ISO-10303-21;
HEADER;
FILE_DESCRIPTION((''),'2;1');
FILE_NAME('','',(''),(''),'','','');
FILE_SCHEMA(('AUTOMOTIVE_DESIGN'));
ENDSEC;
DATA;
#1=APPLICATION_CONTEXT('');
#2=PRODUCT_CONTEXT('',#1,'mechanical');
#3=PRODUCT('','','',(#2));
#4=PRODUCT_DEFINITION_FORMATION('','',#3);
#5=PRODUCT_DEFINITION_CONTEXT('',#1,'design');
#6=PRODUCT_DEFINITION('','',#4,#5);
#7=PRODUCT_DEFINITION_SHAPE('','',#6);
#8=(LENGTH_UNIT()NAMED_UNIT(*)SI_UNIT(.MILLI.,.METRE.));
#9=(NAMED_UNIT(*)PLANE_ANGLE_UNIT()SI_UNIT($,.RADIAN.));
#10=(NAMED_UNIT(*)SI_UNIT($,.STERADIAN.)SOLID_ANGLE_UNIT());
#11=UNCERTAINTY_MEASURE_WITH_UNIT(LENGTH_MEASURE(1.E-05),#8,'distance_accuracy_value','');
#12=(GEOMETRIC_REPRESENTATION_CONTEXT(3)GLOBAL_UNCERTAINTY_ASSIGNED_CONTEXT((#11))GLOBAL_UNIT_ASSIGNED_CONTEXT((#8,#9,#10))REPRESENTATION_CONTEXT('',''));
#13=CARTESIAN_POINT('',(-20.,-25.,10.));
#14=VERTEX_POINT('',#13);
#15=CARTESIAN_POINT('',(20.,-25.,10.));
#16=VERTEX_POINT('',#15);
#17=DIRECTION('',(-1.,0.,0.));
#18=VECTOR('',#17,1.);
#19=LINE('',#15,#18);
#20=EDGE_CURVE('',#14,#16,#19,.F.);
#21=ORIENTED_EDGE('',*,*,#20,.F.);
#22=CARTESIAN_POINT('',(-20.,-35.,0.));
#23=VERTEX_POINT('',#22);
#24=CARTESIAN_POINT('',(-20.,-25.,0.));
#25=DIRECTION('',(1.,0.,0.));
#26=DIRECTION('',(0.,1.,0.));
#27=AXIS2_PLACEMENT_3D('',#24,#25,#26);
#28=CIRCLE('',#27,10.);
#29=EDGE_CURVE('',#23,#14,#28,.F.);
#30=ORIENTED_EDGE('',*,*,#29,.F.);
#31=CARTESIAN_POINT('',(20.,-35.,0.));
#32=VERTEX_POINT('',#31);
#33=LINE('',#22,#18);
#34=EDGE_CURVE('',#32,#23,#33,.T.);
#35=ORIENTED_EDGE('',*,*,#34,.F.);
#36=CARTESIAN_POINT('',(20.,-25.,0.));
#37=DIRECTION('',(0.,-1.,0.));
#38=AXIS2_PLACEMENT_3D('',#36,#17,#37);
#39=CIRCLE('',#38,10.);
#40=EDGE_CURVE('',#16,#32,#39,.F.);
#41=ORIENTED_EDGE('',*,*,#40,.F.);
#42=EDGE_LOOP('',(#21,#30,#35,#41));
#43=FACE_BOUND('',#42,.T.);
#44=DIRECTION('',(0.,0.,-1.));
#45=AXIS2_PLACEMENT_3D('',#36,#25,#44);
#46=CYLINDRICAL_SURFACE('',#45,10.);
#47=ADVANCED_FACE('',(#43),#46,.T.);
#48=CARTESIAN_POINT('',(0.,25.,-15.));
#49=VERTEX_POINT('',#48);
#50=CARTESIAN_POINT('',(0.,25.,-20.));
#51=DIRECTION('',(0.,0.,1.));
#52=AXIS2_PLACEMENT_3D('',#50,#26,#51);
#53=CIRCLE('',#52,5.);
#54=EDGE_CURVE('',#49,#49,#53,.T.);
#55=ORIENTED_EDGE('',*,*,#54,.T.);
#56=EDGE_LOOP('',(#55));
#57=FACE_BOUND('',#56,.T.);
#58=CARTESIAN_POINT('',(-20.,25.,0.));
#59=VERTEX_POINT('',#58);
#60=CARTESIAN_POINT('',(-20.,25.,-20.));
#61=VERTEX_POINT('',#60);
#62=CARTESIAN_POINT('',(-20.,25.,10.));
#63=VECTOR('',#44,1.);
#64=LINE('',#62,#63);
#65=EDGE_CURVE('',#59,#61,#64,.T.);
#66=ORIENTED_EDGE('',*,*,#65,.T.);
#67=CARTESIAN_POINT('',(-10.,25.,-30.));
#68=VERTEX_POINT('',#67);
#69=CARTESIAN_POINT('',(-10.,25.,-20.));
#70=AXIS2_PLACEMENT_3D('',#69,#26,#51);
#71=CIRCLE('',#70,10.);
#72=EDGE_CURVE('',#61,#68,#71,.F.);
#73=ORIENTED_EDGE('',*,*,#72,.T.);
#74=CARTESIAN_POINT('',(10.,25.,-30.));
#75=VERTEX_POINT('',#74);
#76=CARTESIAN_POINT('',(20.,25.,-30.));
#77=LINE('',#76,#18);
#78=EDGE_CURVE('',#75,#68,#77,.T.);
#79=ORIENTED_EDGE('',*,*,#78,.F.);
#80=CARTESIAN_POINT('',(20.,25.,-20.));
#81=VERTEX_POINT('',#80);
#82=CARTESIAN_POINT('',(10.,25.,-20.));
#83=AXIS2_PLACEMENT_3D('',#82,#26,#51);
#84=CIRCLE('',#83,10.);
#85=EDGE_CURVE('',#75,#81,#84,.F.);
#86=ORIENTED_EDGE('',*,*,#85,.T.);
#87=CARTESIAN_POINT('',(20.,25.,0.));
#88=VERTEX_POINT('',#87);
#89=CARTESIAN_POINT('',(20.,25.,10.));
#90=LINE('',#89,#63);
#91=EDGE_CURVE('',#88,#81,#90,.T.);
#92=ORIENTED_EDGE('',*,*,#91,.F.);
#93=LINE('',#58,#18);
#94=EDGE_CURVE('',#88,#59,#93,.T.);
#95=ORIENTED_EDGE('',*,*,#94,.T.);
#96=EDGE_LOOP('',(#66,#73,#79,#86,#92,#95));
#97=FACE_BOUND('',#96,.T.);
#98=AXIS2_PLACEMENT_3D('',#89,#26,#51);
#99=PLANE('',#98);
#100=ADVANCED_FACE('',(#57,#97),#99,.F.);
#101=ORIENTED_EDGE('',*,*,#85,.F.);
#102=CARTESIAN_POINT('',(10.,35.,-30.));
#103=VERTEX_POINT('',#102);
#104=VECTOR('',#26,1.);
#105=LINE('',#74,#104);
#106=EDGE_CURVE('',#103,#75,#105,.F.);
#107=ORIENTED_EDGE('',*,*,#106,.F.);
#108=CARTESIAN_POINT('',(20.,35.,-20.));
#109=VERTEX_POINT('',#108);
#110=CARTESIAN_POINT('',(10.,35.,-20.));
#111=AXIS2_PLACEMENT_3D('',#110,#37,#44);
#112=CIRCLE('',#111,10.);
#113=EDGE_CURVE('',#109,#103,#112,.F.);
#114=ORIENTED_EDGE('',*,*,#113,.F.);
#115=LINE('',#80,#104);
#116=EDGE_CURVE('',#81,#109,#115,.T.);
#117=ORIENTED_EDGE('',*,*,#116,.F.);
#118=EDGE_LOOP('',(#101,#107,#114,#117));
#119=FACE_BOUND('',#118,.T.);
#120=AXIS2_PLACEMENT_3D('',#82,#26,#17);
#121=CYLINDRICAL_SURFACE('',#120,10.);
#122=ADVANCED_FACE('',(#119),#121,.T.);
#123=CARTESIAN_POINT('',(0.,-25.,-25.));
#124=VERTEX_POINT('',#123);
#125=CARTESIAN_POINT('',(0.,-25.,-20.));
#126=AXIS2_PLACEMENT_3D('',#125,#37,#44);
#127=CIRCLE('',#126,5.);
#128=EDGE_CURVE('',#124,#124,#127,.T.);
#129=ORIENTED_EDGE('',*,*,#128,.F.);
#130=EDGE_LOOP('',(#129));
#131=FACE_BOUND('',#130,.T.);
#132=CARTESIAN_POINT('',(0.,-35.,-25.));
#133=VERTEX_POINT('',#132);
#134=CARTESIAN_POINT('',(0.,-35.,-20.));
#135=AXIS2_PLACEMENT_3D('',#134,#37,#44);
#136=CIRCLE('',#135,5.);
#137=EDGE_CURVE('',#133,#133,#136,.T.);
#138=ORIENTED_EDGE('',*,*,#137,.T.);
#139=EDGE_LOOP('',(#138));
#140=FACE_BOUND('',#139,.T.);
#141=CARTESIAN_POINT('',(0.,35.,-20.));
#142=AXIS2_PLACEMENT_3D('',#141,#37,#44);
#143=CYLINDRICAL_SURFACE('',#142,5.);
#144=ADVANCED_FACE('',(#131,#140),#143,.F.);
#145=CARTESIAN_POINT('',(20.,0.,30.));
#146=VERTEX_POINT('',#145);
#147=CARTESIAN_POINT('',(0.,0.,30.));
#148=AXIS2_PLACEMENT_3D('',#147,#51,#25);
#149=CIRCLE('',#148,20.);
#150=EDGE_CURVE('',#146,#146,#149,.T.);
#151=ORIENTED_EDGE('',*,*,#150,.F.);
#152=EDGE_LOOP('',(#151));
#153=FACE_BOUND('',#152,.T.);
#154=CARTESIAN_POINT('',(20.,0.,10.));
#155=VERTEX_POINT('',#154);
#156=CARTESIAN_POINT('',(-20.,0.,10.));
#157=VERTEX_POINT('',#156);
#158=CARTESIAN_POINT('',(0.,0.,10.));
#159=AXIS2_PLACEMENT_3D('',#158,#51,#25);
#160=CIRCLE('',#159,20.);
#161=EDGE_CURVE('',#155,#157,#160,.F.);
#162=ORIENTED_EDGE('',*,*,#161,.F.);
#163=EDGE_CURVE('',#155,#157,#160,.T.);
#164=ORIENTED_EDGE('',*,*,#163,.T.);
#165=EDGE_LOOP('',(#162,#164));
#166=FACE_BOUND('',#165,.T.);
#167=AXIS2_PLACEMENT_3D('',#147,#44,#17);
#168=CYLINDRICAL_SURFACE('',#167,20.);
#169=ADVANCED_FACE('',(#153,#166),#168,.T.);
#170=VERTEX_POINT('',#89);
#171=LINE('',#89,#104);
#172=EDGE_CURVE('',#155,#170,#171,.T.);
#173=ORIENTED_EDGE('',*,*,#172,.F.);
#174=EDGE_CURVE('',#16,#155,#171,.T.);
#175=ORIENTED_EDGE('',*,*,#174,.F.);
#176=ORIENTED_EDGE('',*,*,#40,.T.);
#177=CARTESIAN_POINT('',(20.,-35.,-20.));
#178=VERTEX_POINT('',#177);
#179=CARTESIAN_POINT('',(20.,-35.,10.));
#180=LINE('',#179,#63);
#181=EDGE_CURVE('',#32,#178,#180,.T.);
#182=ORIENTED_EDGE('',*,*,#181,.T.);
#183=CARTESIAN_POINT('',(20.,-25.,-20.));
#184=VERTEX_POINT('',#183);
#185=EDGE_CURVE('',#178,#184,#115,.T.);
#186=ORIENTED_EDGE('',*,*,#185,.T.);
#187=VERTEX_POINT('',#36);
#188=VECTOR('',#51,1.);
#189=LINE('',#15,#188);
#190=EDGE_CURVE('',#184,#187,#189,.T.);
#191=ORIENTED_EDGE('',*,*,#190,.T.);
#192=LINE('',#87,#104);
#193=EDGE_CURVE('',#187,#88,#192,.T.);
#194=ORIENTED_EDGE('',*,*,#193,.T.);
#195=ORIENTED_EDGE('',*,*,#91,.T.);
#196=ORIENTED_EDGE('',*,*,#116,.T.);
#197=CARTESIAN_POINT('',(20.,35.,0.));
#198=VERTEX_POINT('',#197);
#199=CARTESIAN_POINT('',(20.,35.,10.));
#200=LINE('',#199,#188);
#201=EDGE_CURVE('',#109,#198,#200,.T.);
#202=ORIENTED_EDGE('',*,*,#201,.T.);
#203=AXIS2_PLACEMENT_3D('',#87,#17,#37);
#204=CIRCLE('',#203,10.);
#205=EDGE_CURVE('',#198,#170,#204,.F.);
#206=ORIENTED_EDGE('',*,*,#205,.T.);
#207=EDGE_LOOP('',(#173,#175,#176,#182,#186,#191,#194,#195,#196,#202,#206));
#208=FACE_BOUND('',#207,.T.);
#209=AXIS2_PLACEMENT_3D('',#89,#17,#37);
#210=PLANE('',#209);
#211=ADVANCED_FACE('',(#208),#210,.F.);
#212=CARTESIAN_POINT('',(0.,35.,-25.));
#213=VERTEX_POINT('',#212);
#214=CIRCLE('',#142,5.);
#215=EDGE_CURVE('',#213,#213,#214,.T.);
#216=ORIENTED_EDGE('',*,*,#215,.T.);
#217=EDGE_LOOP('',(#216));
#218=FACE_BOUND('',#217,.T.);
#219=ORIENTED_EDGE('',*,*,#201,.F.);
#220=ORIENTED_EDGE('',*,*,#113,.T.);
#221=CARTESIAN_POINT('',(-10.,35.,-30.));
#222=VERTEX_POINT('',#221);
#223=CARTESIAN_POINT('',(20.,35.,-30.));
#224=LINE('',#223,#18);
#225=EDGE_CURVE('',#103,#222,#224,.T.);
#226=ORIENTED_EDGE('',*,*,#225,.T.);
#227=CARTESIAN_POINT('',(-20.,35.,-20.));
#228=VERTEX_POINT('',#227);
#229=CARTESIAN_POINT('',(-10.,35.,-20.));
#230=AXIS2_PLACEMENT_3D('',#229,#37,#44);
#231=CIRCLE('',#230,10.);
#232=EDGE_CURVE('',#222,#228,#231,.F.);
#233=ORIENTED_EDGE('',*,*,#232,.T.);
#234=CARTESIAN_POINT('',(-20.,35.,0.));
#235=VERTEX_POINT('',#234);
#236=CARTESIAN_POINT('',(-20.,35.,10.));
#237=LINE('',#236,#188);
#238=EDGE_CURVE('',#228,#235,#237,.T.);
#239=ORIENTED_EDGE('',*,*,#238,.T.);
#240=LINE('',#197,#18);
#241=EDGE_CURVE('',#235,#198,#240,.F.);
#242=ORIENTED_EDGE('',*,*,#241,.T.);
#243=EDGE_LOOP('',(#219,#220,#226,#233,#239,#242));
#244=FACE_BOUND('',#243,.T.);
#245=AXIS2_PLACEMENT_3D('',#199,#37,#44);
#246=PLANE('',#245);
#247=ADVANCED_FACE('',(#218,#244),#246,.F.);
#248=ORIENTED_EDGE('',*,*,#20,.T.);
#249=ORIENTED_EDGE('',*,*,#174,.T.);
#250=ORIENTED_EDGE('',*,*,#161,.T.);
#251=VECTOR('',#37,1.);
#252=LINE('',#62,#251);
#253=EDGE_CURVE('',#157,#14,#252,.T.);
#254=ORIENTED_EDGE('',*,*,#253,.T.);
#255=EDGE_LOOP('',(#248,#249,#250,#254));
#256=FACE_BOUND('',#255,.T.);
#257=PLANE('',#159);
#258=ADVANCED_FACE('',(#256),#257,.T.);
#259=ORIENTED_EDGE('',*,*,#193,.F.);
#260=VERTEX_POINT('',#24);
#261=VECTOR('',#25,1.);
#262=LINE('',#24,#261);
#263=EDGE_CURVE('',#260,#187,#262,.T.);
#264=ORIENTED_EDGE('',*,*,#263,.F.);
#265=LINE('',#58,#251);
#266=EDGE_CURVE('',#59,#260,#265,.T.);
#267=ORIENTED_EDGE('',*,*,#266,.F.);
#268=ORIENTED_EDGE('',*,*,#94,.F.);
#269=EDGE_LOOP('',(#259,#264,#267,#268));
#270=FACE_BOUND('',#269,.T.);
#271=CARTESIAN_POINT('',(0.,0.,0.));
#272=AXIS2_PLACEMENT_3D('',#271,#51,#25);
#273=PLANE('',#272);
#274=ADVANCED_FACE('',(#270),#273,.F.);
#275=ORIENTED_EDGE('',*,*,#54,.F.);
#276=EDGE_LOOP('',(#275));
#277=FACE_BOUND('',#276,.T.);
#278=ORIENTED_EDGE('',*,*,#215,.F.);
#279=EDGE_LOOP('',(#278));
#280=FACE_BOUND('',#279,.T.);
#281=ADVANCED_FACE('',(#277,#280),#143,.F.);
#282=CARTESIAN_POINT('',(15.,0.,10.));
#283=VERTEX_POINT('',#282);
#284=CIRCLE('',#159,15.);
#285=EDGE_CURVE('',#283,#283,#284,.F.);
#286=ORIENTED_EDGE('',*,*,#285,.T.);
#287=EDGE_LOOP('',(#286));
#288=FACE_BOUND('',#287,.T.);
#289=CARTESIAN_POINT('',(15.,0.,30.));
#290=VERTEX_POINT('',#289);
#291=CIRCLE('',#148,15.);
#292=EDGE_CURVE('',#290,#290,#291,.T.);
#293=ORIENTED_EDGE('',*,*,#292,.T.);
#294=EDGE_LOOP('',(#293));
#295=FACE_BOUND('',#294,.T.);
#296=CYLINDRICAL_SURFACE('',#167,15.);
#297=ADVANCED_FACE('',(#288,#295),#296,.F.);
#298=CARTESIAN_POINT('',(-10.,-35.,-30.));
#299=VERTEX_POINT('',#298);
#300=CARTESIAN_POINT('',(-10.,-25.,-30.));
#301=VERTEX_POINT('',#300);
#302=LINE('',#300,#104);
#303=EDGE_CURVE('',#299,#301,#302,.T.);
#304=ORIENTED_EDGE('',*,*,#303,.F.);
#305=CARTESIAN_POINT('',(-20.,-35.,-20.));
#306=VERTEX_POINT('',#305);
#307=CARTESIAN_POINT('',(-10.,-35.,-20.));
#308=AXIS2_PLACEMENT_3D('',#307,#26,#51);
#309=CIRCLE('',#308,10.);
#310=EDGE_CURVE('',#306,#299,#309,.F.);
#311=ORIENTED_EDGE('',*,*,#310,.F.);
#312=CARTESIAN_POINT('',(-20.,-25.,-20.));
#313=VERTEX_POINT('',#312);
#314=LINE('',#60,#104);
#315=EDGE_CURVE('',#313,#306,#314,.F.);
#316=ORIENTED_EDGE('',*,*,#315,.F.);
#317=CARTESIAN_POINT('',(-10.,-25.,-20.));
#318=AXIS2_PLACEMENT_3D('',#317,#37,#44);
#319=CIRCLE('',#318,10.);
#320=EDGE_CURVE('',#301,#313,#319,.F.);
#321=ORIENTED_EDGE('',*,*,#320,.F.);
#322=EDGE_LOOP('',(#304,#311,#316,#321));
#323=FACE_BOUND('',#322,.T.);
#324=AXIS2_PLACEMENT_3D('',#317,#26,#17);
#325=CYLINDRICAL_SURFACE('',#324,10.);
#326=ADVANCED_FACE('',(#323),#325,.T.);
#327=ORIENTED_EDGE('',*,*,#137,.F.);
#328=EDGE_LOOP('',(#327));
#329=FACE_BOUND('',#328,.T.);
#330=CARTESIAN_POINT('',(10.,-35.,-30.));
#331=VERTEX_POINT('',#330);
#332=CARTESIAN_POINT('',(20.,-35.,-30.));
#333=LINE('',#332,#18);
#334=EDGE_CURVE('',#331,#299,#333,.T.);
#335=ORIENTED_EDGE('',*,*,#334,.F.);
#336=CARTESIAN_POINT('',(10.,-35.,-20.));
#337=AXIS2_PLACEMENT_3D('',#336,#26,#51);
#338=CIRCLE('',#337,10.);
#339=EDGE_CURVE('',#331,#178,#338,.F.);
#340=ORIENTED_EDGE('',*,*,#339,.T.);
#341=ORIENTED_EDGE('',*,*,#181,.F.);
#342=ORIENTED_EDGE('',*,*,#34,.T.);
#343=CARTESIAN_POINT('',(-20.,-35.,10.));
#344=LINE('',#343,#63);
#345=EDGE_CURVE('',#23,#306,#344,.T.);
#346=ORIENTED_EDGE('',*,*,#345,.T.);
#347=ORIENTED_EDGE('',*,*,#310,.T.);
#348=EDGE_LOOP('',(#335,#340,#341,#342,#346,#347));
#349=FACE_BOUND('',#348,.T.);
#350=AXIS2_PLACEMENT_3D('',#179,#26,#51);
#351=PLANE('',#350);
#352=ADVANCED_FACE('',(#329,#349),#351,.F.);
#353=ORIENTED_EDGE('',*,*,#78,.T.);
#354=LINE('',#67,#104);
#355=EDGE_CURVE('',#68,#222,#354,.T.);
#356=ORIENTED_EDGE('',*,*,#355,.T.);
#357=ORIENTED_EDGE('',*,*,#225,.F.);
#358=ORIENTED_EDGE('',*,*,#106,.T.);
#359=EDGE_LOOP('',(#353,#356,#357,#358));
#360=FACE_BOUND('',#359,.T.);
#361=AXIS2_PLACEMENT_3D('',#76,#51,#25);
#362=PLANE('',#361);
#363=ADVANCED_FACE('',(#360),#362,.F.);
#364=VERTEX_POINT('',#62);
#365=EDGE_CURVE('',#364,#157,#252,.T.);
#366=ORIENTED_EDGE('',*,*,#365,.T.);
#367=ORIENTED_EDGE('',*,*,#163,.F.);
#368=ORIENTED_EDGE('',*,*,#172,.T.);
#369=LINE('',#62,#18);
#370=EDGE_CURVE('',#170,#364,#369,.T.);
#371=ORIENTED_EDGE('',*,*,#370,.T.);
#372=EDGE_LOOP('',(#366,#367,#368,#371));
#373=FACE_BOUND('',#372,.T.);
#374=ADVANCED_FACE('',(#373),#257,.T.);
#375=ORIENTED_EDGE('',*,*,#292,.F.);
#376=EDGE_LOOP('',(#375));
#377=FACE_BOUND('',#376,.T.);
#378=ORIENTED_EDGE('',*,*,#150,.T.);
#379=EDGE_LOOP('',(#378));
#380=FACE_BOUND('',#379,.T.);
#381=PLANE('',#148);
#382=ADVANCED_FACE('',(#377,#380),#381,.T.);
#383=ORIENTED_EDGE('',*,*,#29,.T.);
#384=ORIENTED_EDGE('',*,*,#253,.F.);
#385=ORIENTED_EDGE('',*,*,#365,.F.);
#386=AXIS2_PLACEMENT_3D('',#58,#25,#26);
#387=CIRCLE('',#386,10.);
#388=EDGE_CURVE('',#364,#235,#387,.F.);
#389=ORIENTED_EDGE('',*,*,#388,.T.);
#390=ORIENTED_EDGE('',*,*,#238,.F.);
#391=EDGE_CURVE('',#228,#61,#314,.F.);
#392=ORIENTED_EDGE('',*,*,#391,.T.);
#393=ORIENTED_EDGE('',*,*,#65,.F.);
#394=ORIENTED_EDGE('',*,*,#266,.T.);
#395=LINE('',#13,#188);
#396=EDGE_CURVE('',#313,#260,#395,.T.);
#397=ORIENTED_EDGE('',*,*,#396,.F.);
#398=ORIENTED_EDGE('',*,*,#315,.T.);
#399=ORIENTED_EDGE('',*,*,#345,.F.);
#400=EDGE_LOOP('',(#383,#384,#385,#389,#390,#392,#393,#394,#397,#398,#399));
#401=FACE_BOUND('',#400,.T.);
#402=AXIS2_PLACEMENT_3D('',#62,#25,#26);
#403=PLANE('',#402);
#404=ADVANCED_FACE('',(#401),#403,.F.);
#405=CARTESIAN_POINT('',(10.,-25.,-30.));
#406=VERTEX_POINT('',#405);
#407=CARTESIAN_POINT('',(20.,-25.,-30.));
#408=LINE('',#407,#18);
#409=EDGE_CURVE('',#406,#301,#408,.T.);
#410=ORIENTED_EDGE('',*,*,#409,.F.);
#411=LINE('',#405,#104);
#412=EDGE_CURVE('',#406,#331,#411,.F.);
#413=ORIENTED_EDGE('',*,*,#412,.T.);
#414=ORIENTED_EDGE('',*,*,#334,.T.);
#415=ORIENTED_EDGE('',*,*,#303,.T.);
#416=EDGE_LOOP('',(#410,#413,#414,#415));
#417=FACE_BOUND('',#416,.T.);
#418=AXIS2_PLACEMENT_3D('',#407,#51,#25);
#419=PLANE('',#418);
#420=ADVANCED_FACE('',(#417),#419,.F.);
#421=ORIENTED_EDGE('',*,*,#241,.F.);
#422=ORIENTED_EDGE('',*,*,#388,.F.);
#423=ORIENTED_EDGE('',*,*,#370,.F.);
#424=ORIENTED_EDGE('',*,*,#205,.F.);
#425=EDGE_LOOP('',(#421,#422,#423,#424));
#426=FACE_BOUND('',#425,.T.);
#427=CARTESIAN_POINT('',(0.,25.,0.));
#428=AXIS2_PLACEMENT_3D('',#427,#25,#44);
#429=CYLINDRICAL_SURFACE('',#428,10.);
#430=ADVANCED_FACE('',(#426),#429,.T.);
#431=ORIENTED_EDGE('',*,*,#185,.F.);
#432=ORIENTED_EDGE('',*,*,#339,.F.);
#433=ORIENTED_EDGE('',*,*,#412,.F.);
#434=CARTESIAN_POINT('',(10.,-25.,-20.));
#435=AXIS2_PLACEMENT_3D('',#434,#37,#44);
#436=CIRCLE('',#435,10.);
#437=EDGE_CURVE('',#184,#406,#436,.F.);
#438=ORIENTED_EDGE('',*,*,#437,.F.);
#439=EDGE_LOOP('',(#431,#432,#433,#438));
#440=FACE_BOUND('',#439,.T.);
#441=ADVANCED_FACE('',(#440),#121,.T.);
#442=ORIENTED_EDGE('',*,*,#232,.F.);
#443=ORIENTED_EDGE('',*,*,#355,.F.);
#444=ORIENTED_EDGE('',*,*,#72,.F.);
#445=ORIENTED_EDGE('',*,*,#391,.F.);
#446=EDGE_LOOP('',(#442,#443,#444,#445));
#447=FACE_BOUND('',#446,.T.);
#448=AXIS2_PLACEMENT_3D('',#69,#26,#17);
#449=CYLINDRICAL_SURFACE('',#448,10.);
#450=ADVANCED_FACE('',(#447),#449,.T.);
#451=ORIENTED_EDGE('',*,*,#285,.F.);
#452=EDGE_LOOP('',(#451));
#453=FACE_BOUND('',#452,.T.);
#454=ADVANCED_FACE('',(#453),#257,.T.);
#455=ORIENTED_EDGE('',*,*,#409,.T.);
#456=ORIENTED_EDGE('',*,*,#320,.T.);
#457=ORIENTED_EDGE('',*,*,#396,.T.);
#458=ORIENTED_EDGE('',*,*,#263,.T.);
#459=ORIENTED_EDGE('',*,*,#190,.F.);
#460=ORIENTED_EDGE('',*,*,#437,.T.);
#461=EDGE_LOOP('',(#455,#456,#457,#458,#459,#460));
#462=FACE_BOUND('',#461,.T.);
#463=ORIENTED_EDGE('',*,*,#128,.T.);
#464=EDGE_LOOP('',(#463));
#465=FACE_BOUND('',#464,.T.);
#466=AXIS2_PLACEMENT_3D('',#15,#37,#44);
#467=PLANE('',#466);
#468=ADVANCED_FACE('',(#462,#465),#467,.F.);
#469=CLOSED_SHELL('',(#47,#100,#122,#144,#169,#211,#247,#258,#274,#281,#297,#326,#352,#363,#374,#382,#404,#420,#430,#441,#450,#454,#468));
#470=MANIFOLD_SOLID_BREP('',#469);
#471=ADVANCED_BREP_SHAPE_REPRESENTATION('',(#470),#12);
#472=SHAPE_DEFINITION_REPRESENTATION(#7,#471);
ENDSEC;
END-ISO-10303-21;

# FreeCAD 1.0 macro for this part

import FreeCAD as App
import Part
import Sketcher
from FreeCAD import Vector


def edges_at(feature, points):
    """Names of the edges that pass closest to the given points."""
    edges = feature.Shape.Edges
    near = lambda p: min(range(len(edges)), key=lambda i: edges[i].distToShape(Part.Vertex(*p))[0])
    return sorted({f"Edge{near(p) + 1}" for p in points})


def add_polygon(sketch, points):
    """Adds a closed chain of lines whose ends are joined by coincident constraints."""
    first, n = sketch.GeometryCount, len(points)
    for a, b in zip(points, points[1:] + points[:1]):
        sketch.addGeometry(Part.LineSegment(App.Vector(*a, 0), App.Vector(*b, 0)), False)
    for i in range(n):
        sketch.addConstraint(Sketcher.Constraint("Coincident", first + i, 2, first + (i + 1) % n, 1))

doc = App.newDocument("Part")
body = doc.addObject("PartDesign::Body", "Body")

# Sketch on XY plane
sketch1 = body.newObject("Sketcher::SketchObject", "Sketch")
sketch1.AttachmentSupport = (doc.getObject("XY_Plane"), [""])
sketch1.MapMode = "FlatFace"
add_polygon(sketch1, [(-20, 25), (-20, -25), (20, -25), (20, 25)])  # lines 0-3
sketch1.addConstraint(Sketcher.Constraint("Vertical", 0))
sketch1.addConstraint(Sketcher.Constraint("Horizontal", 1))
sketch1.addConstraint(Sketcher.Constraint("Vertical", 2))
sketch1.addConstraint(Sketcher.Constraint("Horizontal", 3))
sketch1.addConstraint(Sketcher.Constraint("Symmetric", 0, 2, 2, 2, -1, 1))
sketch1.addConstraint(Sketcher.Constraint("DistanceX", 1, 1, 1, 2, 40.0))
sketch1.addConstraint(Sketcher.Constraint("DistanceY", 0, 2, 0, 1, 50.0))
pad1 = body.newObject("PartDesign::Pad", "Pad")
pad1.Profile = sketch1
pad1.Length = 10

# Sketch on YZ plane
sketch2 = body.newObject("Sketcher::SketchObject", "Sketch001")
sketch2.AttachmentSupport = (doc.getObject("YZ_Plane"), [""])
sketch2.MapMode = "FlatFace"
add_polygon(sketch2, [(35, 10), (25, 10), (25, -30), (35, -30)])  # lines 0-3
add_polygon(sketch2, [(-25, 10), (-35, 10), (-35, -30), (-25, -30)])  # lines 4-7
sketch2.addConstraint(Sketcher.Constraint("Horizontal", 0))
sketch2.addConstraint(Sketcher.Constraint("Vertical", 1))
sketch2.addConstraint(Sketcher.Constraint("Horizontal", 2))
sketch2.addConstraint(Sketcher.Constraint("Vertical", 3))
sketch2.addConstraint(Sketcher.Constraint("Horizontal", 4))
sketch2.addConstraint(Sketcher.Constraint("Vertical", 5))
sketch2.addConstraint(Sketcher.Constraint("Horizontal", 6))
sketch2.addConstraint(Sketcher.Constraint("Vertical", 7))
sketch2.addConstraint(Sketcher.Constraint("Symmetric", 3, 2, 4, 2, -2))
sketch2.addConstraint(Sketcher.Constraint("Symmetric", 1, 2, 6, 2, -2))
sketch2.addConstraint(Sketcher.Constraint("DistanceX", 0, 2, 0, 1, 10.0))
sketch2.addConstraint(Sketcher.Constraint("DistanceY", 1, 2, 1, 1, 40.0))
sketch2.addConstraint(Sketcher.Constraint("DistanceX", -1, 1, 0, 2, 25.0))
sketch2.addConstraint(Sketcher.Constraint("DistanceY", -1, 1, 0, 2, 10.0))
pad2 = body.newObject("PartDesign::Pad", "Pad001")
pad2.Profile = sketch2
pad2.Length = 40
pad2.Midplane = True
doc.recompute()

fillet = body.newObject("PartDesign::Fillet", "Fillet")
fillet.Base = (pad2, edges_at(pad2, [
    (0, 35, 10),
    (-20, 30, -30),
    (20, 30, -30),
    (0, -35, 10),
    (-20, -30, -30),
    (20, -30, -30),
]))
fillet.Radius = 10

# Sketch on XY plane
sketch3 = body.newObject("Sketcher::SketchObject", "Sketch002")
sketch3.AttachmentSupport = (doc.getObject("XY_Plane"), [""])
sketch3.MapMode = "FlatFace"
sketch3.AttachmentOffset = App.Placement(Vector(0, 0, 10), App.Rotation())
sketch3.addGeometry(Part.Circle(Vector(0, 0, 0), Vector(0, 0, 1), 20), False)
sketch3.addGeometry(Part.Circle(Vector(0, 0, 0), Vector(0, 0, 1), 15), False)
sketch3.addConstraint(Sketcher.Constraint("Coincident", 0, 3, -1, 1))
sketch3.addConstraint(Sketcher.Constraint("Coincident", 1, 3, -1, 1))
sketch3.addConstraint(Sketcher.Constraint("Diameter", 0, 40.0))
sketch3.addConstraint(Sketcher.Constraint("Diameter", 1, 30.0))
pad3 = body.newObject("PartDesign::Pad", "Pad002")
pad3.Profile = sketch3
pad3.Length = 20

# Sketch on XZ plane
sketch4 = body.newObject("Sketcher::SketchObject", "Sketch003")
sketch4.AttachmentSupport = (doc.getObject("XZ_Plane"), [""])
sketch4.MapMode = "FlatFace"
sketch4.AttachmentOffset = App.Placement(Vector(0, 0, 35), App.Rotation())
sketch4.addGeometry(Part.Circle(Vector(0, -20, 0), Vector(0, 0, 1), 5), False)
sketch4.addConstraint(Sketcher.Constraint("PointOnObject", 0, 3, -2))
sketch4.addConstraint(Sketcher.Constraint("Diameter", 0, 10.0))
sketch4.addConstraint(Sketcher.Constraint("DistanceY", 0, 3, -1, 1, 20.0))
pocket1 = body.newObject("PartDesign::Pocket", "Pocket")
pocket1.Profile = sketch4
pocket1.Type = "ThroughAll"

doc.recompute()
